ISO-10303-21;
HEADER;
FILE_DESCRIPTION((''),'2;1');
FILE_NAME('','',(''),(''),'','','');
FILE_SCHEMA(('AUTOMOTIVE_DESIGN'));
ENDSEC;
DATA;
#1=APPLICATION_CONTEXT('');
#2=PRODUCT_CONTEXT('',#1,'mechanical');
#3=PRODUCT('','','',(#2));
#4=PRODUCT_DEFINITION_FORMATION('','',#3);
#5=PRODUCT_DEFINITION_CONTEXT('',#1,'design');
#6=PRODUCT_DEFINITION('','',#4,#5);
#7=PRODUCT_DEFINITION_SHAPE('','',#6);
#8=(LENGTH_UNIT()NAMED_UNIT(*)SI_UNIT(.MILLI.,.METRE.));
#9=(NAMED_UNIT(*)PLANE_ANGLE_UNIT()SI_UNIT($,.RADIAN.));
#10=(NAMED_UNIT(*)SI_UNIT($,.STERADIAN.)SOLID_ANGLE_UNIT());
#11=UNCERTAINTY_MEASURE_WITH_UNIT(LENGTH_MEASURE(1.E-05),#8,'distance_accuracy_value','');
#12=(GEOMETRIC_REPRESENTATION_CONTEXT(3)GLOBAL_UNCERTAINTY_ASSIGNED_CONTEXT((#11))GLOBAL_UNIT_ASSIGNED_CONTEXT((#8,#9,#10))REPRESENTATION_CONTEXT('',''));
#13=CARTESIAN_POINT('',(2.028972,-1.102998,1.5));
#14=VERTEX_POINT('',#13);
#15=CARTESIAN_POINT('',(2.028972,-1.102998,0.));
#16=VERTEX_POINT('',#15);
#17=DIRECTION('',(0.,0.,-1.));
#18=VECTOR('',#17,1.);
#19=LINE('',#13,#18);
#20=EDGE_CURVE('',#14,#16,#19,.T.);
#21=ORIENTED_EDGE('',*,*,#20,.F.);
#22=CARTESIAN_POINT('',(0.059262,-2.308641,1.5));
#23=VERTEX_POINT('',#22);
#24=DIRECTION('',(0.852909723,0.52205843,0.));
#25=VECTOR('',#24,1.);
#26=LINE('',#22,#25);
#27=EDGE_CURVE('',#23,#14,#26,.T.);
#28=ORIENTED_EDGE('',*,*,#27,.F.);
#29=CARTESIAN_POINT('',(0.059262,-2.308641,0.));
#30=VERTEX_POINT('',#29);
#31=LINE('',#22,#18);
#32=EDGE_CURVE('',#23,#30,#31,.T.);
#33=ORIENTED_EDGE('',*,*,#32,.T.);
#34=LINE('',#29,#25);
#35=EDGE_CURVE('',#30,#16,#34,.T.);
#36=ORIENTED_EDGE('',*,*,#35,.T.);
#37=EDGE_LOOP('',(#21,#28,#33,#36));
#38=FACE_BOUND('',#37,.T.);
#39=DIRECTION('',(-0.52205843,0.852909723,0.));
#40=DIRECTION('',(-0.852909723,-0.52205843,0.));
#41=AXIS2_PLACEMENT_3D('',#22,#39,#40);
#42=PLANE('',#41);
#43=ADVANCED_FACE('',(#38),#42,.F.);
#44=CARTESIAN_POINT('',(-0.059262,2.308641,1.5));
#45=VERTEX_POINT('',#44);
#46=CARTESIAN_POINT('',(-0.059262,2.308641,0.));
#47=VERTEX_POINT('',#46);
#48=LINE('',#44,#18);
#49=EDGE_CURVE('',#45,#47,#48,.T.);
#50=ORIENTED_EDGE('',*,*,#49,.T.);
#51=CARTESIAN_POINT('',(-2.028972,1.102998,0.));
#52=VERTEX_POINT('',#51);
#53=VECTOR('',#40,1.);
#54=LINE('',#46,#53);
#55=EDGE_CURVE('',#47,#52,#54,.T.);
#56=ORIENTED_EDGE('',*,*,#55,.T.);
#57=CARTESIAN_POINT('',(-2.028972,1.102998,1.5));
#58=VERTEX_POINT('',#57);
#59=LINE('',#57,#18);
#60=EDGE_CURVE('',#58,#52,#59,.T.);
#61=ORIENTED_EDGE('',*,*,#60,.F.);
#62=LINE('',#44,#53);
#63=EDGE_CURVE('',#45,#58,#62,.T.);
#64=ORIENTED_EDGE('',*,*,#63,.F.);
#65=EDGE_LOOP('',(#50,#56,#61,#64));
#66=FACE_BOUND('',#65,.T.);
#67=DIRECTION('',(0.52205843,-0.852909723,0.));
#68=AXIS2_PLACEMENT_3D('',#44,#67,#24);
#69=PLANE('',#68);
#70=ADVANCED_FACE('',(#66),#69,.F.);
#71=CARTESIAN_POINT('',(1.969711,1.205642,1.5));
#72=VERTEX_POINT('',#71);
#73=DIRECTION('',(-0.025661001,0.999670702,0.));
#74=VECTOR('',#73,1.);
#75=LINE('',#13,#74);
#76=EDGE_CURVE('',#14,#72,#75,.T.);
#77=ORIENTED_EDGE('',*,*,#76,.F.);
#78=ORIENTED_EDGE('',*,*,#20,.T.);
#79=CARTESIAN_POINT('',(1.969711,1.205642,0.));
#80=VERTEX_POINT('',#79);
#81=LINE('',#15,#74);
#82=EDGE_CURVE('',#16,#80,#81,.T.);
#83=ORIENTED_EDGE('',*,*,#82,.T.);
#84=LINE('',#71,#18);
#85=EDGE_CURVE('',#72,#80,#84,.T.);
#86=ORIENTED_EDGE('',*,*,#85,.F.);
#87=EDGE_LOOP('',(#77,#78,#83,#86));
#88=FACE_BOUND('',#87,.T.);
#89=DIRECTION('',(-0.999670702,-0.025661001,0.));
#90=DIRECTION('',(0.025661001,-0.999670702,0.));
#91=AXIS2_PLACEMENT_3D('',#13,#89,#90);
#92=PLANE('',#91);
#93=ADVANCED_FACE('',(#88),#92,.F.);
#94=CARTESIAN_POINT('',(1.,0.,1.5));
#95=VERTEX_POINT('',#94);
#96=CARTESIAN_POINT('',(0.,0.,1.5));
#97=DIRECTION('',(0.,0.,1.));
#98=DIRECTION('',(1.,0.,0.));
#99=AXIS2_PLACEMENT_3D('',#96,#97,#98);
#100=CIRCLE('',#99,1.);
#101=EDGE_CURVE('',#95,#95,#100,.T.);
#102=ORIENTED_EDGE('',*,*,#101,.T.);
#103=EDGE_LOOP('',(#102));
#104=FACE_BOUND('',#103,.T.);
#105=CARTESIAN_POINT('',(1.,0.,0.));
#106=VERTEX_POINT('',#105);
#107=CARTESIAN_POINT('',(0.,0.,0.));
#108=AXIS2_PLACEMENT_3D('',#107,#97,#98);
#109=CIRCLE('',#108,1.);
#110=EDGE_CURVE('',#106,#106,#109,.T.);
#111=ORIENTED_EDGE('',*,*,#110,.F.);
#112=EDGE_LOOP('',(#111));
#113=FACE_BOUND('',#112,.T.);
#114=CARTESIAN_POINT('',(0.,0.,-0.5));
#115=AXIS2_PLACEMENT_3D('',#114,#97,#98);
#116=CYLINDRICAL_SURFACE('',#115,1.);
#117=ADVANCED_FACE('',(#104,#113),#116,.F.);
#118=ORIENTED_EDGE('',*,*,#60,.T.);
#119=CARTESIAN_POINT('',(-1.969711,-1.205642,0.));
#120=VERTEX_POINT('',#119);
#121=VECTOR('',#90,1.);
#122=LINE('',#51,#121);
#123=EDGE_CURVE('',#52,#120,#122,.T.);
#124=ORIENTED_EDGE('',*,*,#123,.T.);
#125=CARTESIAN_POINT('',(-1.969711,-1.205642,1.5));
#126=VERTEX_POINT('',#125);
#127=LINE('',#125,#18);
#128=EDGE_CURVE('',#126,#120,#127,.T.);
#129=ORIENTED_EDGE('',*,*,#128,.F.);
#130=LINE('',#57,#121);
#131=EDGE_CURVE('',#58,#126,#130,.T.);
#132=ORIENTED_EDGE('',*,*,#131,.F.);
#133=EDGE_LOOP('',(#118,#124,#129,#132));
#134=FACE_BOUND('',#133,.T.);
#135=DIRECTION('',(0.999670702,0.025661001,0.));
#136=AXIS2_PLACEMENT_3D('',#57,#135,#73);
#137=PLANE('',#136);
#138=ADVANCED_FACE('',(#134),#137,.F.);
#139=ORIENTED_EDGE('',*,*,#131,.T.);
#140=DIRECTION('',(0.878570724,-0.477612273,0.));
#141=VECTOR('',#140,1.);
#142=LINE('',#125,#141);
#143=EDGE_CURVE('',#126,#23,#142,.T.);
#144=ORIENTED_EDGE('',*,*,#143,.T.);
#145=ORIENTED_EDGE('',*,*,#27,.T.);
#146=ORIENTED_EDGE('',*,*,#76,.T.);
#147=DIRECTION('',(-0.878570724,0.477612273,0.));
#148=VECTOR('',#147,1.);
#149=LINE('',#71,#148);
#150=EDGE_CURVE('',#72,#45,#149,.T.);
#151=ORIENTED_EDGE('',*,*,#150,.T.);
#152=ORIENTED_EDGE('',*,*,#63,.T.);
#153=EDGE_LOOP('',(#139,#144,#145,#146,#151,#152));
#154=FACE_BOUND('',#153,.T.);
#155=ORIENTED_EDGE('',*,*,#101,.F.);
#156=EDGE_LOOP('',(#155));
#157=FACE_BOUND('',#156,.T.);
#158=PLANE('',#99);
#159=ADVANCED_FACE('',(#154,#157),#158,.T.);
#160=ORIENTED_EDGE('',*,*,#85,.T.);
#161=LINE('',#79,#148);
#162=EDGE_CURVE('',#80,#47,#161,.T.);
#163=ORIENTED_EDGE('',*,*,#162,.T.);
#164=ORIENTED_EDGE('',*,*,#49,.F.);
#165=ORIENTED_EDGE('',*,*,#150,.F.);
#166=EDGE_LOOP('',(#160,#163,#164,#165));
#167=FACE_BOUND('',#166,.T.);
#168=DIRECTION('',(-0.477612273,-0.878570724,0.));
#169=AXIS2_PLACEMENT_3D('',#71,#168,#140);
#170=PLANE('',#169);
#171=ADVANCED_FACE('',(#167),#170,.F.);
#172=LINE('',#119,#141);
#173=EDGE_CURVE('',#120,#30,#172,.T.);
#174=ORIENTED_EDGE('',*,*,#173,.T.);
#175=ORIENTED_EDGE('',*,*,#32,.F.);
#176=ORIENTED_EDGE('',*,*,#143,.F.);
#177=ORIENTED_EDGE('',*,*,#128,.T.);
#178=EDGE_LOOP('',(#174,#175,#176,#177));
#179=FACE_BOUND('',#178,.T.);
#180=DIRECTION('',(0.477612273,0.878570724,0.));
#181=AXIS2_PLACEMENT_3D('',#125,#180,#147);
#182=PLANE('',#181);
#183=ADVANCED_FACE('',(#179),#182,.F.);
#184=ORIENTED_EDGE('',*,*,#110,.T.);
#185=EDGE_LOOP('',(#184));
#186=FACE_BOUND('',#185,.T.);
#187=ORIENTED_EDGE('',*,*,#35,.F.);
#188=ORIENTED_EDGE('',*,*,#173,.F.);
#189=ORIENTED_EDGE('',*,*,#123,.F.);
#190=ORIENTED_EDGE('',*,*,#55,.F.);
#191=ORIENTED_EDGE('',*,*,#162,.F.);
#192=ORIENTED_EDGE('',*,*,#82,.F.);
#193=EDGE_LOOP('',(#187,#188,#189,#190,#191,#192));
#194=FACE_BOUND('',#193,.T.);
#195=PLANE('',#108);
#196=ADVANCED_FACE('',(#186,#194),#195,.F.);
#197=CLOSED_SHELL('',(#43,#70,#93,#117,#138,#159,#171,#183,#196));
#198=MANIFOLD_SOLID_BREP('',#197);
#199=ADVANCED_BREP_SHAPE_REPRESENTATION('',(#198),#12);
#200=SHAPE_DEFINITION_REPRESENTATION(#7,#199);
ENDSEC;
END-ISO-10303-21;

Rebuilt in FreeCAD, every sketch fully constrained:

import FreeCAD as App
import Part
import Sketcher
Q = App.Units.Quantity

doc = App.newDocument("Part")
body = doc.addObject("PartDesign::Body", "Body")

# Sketch on XY plane
sketch1 = body.newObject("Sketcher::SketchObject", "Sketch")
sketch1.AttachmentSupport = (doc.getObject("XY_Plane"), [""])
sketch1.MapMode = "FlatFace"
sketch1.addGeometry(Part.LineSegment(App.Vector(2, -1.1, 0), App.Vector(2, 1.2, 0)), False)
sketch1.addGeometry(Part.LineSegment(App.Vector(2, 1.2, 0), App.Vector(-0.1, 2.3, 0)), False)
sketch1.addGeometry(Part.LineSegment(App.Vector(-0.1, 2.3, 0), App.Vector(-2, 1.1, 0)), False)
sketch1.addGeometry(Part.LineSegment(App.Vector(-2, 1.1, 0), App.Vector(-2, -1.2, 0)), False)
sketch1.addGeometry(Part.LineSegment(App.Vector(-2, -1.2, 0), App.Vector(0.1, -2.3, 0)), False)
sketch1.addGeometry(Part.LineSegment(App.Vector(0.1, -2.3, 0), App.Vector(2, -1.1, 0)), False)
sketch1.addConstraint(Sketcher.Constraint("Coincident", 0, 2, 1, 1))
sketch1.addConstraint(Sketcher.Constraint("Coincident", 1, 2, 2, 1))
sketch1.addConstraint(Sketcher.Constraint("Coincident", 2, 2, 3, 1))
sketch1.addConstraint(Sketcher.Constraint("Coincident", 3, 2, 4, 1))
sketch1.addConstraint(Sketcher.Constraint("Coincident", 4, 2, 5, 1))
sketch1.addConstraint(Sketcher.Constraint("Coincident", 5, 2, 0, 1))
sketch1.addConstraint(Sketcher.Constraint("Symmetric", 0, 2, 3, 2, -1, 1))
sketch1.addConstraint(Sketcher.Constraint("Symmetric", 1, 2, 4, 2, -1, 1))
sketch1.addConstraint(Sketcher.Constraint("Symmetric", 2, 2, 5, 2, -1, 1))
sketch1.addConstraint(Sketcher.Constraint("Equal", 0, 1))
sketch1.addConstraint(Sketcher.Constraint("Equal", 1, 2))
sketch1.addConstraint(Sketcher.Constraint("DistanceY", -1, 1, 2, 2, Q("1.102998 mm")))
sketch1.addConstraint(Sketcher.Constraint("DistanceY", 0, 2, 1, 2, Q("1.102998 mm")))
sketch1.addConstraint(Sketcher.Constraint("Distance", 0, Q("2.309401 mm")))
sketch1.addConstraint(Sketcher.Constraint("DistanceX", -1, 1, 0, 2, Q("1.969711 mm")))
pad1 = body.newObject("PartDesign::Pad", "Pad")
pad1.Profile = sketch1
pad1.Length = 1.5

# Sketch on XY plane
sketch2 = body.newObject("Sketcher::SketchObject", "Sketch001")
sketch2.AttachmentSupport = (doc.getObject("XY_Plane"), [""])
sketch2.MapMode = "FlatFace"
sketch2.AttachmentOffset = App.Placement(App.Vector(0, 0, 1.5), App.Rotation())
sketch2.addGeometry(Part.Circle(App.Vector(0, 0, 0), App.Vector(0, 0, 1), 1), False)
sketch2.addConstraint(Sketcher.Constraint("Coincident", 0, 3, -1, 1))
sketch2.addConstraint(Sketcher.Constraint("Diameter", 0, Q("2 mm")))
pocket1 = body.newObject("PartDesign::Pocket", "Pocket")
pocket1.Profile = sketch2
pocket1.Length = 2

doc.recompute()
